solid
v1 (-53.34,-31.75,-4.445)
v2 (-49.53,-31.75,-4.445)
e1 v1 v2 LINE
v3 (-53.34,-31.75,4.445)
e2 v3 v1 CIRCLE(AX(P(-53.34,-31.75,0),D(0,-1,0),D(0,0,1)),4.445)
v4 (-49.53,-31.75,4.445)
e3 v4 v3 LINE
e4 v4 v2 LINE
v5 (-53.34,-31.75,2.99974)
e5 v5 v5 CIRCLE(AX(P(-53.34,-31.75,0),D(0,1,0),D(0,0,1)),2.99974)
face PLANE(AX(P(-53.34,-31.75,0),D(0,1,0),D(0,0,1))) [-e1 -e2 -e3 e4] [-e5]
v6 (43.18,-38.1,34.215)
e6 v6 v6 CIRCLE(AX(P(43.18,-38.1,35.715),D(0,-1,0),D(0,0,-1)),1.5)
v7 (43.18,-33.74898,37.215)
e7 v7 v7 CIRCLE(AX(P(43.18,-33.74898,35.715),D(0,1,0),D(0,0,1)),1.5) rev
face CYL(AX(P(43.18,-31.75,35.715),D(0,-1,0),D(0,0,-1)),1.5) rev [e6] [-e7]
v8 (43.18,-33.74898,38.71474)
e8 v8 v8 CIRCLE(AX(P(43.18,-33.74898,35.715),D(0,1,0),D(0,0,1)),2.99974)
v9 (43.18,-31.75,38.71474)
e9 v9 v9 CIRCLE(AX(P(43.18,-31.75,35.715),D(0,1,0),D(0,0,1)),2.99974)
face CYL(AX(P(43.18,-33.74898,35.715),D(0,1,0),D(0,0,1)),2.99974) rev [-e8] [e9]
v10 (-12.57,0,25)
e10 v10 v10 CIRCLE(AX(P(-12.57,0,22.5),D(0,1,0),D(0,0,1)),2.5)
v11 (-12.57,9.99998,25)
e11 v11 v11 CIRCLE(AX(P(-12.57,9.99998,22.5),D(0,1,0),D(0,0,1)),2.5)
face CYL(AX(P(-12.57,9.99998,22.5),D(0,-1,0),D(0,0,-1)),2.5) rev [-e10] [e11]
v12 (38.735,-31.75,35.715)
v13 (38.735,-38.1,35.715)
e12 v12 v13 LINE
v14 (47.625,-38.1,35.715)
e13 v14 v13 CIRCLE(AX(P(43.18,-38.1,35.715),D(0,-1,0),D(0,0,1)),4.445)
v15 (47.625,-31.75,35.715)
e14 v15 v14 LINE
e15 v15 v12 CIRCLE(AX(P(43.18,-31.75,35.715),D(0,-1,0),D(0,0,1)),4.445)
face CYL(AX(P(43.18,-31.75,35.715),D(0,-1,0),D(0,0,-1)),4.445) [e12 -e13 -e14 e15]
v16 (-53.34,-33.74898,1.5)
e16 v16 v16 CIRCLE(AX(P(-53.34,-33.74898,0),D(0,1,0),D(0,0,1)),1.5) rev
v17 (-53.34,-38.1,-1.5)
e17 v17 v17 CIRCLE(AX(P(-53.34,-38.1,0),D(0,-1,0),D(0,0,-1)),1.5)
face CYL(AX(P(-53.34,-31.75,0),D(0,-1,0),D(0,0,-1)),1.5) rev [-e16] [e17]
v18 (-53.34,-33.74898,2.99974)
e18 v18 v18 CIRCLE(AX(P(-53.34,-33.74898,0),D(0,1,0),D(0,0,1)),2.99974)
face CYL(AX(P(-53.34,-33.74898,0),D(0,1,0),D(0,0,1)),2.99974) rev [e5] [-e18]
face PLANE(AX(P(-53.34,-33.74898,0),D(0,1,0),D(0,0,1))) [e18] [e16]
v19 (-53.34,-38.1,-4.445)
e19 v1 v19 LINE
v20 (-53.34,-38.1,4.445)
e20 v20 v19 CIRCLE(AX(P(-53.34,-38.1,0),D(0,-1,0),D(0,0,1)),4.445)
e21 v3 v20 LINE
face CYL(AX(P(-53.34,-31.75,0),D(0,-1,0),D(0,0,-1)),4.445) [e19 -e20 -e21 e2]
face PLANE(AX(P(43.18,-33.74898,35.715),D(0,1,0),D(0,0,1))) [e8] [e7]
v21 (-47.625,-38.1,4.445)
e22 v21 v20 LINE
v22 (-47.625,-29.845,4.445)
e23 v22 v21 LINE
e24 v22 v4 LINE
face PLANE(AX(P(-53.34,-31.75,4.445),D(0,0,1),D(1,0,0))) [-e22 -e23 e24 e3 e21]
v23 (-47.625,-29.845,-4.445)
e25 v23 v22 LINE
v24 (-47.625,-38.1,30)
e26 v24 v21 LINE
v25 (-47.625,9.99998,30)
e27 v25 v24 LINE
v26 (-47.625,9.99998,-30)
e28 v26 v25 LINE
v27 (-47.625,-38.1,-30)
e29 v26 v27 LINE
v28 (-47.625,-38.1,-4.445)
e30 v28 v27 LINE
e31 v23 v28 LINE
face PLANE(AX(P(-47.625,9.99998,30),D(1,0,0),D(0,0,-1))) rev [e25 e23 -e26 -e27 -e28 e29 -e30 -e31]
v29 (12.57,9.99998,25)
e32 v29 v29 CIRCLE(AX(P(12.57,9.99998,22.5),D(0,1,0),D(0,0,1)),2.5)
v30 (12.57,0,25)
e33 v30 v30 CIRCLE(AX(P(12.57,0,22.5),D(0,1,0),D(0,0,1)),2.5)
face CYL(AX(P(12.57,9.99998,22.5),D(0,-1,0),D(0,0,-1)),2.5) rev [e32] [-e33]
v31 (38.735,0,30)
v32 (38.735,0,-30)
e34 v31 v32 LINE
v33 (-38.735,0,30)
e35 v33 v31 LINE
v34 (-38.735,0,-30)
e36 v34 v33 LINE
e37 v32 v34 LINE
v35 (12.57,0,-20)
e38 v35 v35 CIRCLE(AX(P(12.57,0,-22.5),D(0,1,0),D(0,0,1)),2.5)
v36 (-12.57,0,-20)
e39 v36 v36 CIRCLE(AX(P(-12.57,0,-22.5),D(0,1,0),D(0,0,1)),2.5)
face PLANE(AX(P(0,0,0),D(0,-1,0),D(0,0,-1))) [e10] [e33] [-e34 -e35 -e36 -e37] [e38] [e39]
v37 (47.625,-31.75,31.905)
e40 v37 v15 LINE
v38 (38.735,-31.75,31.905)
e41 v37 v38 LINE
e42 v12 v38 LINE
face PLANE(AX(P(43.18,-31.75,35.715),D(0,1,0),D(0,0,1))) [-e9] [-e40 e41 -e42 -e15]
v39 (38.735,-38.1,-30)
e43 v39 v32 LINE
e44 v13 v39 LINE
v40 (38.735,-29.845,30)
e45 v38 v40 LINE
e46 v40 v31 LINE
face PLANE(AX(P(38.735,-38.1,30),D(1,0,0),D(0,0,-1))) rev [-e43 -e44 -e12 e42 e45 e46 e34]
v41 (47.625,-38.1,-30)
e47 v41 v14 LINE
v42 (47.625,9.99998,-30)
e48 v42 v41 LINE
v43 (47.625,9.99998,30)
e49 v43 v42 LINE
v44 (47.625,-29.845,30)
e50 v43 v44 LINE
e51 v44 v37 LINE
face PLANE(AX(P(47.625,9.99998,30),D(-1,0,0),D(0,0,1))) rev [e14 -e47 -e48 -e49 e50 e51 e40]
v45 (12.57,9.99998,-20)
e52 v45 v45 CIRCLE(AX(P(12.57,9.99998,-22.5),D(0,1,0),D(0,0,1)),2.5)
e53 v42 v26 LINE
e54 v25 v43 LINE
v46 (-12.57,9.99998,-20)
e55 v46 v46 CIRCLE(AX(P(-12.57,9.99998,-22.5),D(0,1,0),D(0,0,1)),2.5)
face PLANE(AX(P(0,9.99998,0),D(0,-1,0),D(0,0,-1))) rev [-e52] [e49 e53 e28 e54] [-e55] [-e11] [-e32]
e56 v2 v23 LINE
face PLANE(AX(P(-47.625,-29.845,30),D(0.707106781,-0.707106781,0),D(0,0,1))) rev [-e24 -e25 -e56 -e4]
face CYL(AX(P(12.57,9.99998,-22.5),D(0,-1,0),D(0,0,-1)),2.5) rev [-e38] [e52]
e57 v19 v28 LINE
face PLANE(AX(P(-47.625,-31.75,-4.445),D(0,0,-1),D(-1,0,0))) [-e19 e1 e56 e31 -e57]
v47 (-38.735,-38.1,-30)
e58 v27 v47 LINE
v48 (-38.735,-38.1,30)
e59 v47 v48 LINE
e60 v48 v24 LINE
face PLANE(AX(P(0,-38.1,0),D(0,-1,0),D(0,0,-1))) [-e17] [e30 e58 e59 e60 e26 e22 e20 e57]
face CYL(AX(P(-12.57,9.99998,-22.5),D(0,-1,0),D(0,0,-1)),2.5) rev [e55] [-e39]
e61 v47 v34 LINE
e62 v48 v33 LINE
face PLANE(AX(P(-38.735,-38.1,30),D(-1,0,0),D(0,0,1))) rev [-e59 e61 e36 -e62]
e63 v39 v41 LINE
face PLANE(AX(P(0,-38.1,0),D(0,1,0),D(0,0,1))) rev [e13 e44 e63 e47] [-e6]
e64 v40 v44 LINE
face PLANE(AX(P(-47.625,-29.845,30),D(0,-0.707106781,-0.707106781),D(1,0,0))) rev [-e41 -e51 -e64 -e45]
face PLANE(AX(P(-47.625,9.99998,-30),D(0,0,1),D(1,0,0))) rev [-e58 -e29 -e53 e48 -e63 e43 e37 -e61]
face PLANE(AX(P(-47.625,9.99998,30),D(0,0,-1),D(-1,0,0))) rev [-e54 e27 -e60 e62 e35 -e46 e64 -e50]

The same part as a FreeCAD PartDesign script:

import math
import FreeCAD as App
import Part
import Sketcher
from FreeCAD import Vector
Q = App.Units.Quantity


def edges_at(feature, points):
    """Names of the edges that pass closest to the given points."""
    edges = feature.Shape.Edges
    near = lambda p: min(range(len(edges)), key=lambda i: edges[i].distToShape(Part.Vertex(*p))[0])
    return sorted({f"Edge{near(p) + 1}" for p in points})

doc = App.newDocument("Part")
body = doc.addObject("PartDesign::Body", "Body")

# Sketch on XZ plane
sketch1 = body.newObject("Sketcher::SketchObject", "Sketch")
sketch1.AttachmentSupport = (doc.getObject("XZ_Plane"), [""])
sketch1.MapMode = "FlatFace"
sketch1.addGeometry([
    Part.LineSegment(Vector(-47.625, -30, 0), Vector(-47.625, 30, 0)),  # 0
    Part.LineSegment(Vector(-47.625, 30, 0), Vector(47.625, 30, 0)),  # 1
    Part.LineSegment(Vector(47.625, 30, 0), Vector(47.625, -30, 0)),  # 2
    Part.LineSegment(Vector(47.625, -30, 0), Vector(-47.625, -30, 0)),  # 3
    Part.Circle(Vector(-12.57, 22.5, 0), Vector(0, 0, 1), 2.5),  # 4
    Part.Circle(Vector(12.57, 22.5, 0), Vector(0, 0, 1), 2.5),  # 5
    Part.Circle(Vector(-12.57, -22.5, 0), Vector(0, 0, 1), 2.5),  # 6
    Part.Circle(Vector(12.57, -22.5, 0), Vector(0, 0, 1), 2.5),  # 7
], False)
sketch1.addConstraint([
    Sketcher.Constraint("Coincident", 0, 2, 1, 1),
    Sketcher.Constraint("Coincident", 1, 2, 2, 1),
    Sketcher.Constraint("Coincident", 2, 2, 3, 1),
    Sketcher.Constraint("Coincident", 3, 2, 0, 1),
    Sketcher.Constraint("Vertical", 0),
    Sketcher.Constraint("Horizontal", 1),
    Sketcher.Constraint("Vertical", 2),
    Sketcher.Constraint("Horizontal", 3),
    Sketcher.Constraint("Equal", 4, 5),
    Sketcher.Constraint("Equal", 5, 6),
    Sketcher.Constraint("Equal", 6, 7),
    Sketcher.Constraint("Symmetric", 5, 3, 6, 3, -1, 1),
    Sketcher.Constraint("Symmetric", 4, 3, 7, 3, -1, 1),
    Sketcher.Constraint("Symmetric", 0, 2, 2, 2, -1, 1),
    Sketcher.Constraint("Symmetric", 4, 3, 5, 3, -2),
    Sketcher.Constraint("DistanceX", 1, 1, 1, 2, Q("3.75 in")),
    Sketcher.Constraint("Diameter", 4, Q("5 mm")),
    Sketcher.Constraint("DistanceY", 0, 1, 0, 2, Q("60 mm")),
    Sketcher.Constraint("DistanceX", 4, 3, -1, 1, Q("12.57 mm")),
    Sketcher.Constraint("DistanceY", -1, 1, 4, 3, Q("22.5 mm")),
])
pad1 = body.newObject("PartDesign::Pad", "Pad")
pad1.Profile = sketch1
pad1.Length = Q("0.3937 in")
pad1.Reversed = True

# Sketch on XZ plane
sketch2 = body.newObject("Sketcher::SketchObject", "Sketch001")
sketch2.AttachmentSupport = (doc.getObject("XZ_Plane"), [""])
sketch2.MapMode = "FlatFace"
sketch2.addGeometry([
    Part.LineSegment(Vector(-47.625, 30, 0), Vector(-47.625, -30, 0)),  # 0
    Part.LineSegment(Vector(-47.625, -30, 0), Vector(-38.735, -30, 0)),  # 1
    Part.LineSegment(Vector(-38.735, -30, 0), Vector(-38.735, 30, 0)),  # 2
    Part.LineSegment(Vector(-38.735, 30, 0), Vector(-47.625, 30, 0)),  # 3
    Part.LineSegment(Vector(38.735, 30, 0), Vector(38.735, -30, 0)),  # 4
    Part.LineSegment(Vector(38.735, -30, 0), Vector(47.625, -30, 0)),  # 5
    Part.LineSegment(Vector(47.625, -30, 0), Vector(47.625, 30, 0)),  # 6
    Part.LineSegment(Vector(47.625, 30, 0), Vector(38.735, 30, 0)),  # 7
], False)
sketch2.addConstraint([
    Sketcher.Constraint("Coincident", 0, 2, 1, 1),
    Sketcher.Constraint("Coincident", 1, 2, 2, 1),
    Sketcher.Constraint("Coincident", 2, 2, 3, 1),
    Sketcher.Constraint("Coincident", 3, 2, 0, 1),
    Sketcher.Constraint("Coincident", 4, 2, 5, 1),
    Sketcher.Constraint("Coincident", 5, 2, 6, 1),
    Sketcher.Constraint("Coincident", 6, 2, 7, 1),
    Sketcher.Constraint("Coincident", 7, 2, 4, 1),
    Sketcher.Constraint("Vertical", 0),
    Sketcher.Constraint("Horizontal", 1),
    Sketcher.Constraint("Vertical", 2),
    Sketcher.Constraint("Horizontal", 3),
    Sketcher.Constraint("Vertical", 4),
    Sketcher.Constraint("Horizontal", 5),
    Sketcher.Constraint("Vertical", 6),
    Sketcher.Constraint("Horizontal", 7),
    Sketcher.Constraint("Symmetric", 2, 2, 4, 2, -1, 1),
    Sketcher.Constraint("Symmetric", 0, 2, 6, 2, -1, 1),
    Sketcher.Constraint("Horizontal", 1, 2, 4, 2),
    Sketcher.Constraint("DistanceX", 1, 1, 1, 2, Q("0.35 in")),
    Sketcher.Constraint("DistanceX", 0, 2, 4, 2, Q("3.4 in")),
    Sketcher.Constraint("DistanceY", 0, 2, 0, 1, Q("60 mm")),
])
pad2 = body.newObject("PartDesign::Pad", "Pad001")
pad2.Profile = sketch2
pad2.Length = Q("1.5 in")

# Sketch on XZ plane
sketch3 = body.newObject("Sketcher::SketchObject", "Sketch002")
sketch3.AttachmentSupport = (doc.getObject("XZ_Plane"), [""])
sketch3.MapMode = "FlatFace"
sketch3.AttachmentOffset = App.Placement(Vector(0, 0, 1.5 * 25.4), App.Rotation())
sketch3.addGeometry([
    Part.LineSegment(Vector(-53.34, -4.445, 0), Vector(-47.625, -4.445, 0)),  # 0
    Part.LineSegment(Vector(-47.625, -4.445, 0), Vector(-47.625, 4.445, 0)),  # 1
    Part.LineSegment(Vector(-47.625, 4.445, 0), Vector(-53.34, 4.445, 0)),  # 2
    Part.ArcOfCircle(Part.Circle(Vector(-53.34, 0, 0), Vector(0, 0, 1), 4.445), math.radians(90), math.radians(270)),  # 3
    Part.Circle(Vector(-53.34, 0, 0), Vector(0, 0, 1), 1.5),  # 4
    Part.LineSegment(Vector(38.735, 35.715, 0), Vector(38.735, 30, 0)),  # 5
    Part.LineSegment(Vector(38.735, 30, 0), Vector(47.625, 30, 0)),  # 6
    Part.LineSegment(Vector(47.625, 30, 0), Vector(47.625, 35.715, 0)),  # 7
    Part.ArcOfCircle(Part.Circle(Vector(43.18, 35.715, 0), Vector(0, 0, 1), 4.445), math.radians(0), math.radians(180)),  # 8
    Part.Circle(Vector(43.18, 35.715, 0), Vector(0, 0, 1), 1.5),  # 9
], False)
sketch3.addConstraint([
    Sketcher.Constraint("Coincident", 0, 2, 1, 1),
    Sketcher.Constraint("Coincident", 1, 2, 2, 1),
    Sketcher.Constraint("Tangent", 2, 2, 3, 1),
    Sketcher.Constraint("Tangent", 3, 2, 0, 1),
    Sketcher.Constraint("Coincident", 5, 2, 6, 1),
    Sketcher.Constraint("Coincident", 6, 2, 7, 1),
    Sketcher.Constraint("Tangent", 7, 2, 8, 1),
    Sketcher.Constraint("Tangent", 8, 2, 5, 1),
    Sketcher.Constraint("Horizontal", 0),
    Sketcher.Constraint("Vertical", 1),
    Sketcher.Constraint("Horizontal", 2),
    Sketcher.Constraint("Vertical", 5),
    Sketcher.Constraint("Horizontal", 6),
    Sketcher.Constraint("Vertical", 7),
    Sketcher.Constraint("Coincident", 4, 3, 3, 3),
    Sketcher.Constraint("Coincident", 9, 3, 8, 3),
    Sketcher.Constraint("Equal", 3, 8),
    Sketcher.Constraint("Equal", 4, 9),
    Sketcher.Constraint("PointOnObject", 3, 3, -1),
    Sketcher.Constraint("Equal", 2, 5),
    Sketcher.Constraint("Radius", 3, Q("0.175 in")),
    Sketcher.Constraint("DistanceX", 3, 3, -1, 1, Q("2.1 in")),
    Sketcher.Constraint("DistanceX", -1, 1, 8, 3, Q("1.7 in")),
    Sketcher.Constraint("DistanceX", 1, 2, 5, 2, Q("3.4 in")),
    Sketcher.Constraint("Diameter", 4, Q("3 mm")),
    Sketcher.Constraint("DistanceY", -1, 1, 8, 3, Q("35.715 mm")),
])
pad3 = body.newObject("PartDesign::Pad", "Pad002")
pad3.Profile = sketch3
pad3.Length = Q("0.25 in")
pad3.Reversed = True

# Sketch on XZ plane
sketch4 = body.newObject("Sketcher::SketchObject", "Sketch003")
sketch4.AttachmentSupport = (doc.getObject("XZ_Plane"), [""])
sketch4.MapMode = "FlatFace"
sketch4.AttachmentOffset = App.Placement(Vector(0, 0, 1.25 * 25.4), App.Rotation())
sketch4.addGeometry([
    Part.Circle(Vector(43.18, 35.715, 0), Vector(0, 0, 1), 2.99974),
    Part.Circle(Vector(-53.34, 0, 0), Vector(0, 0, 1), 2.99974),
], False)
sketch4.addConstraint([
    Sketcher.Constraint("Equal", 0, 1),
    Sketcher.Constraint("PointOnObject", 1, 3, -1),
    Sketcher.Constraint("Diameter", 0, Q("0.2362 in")),
    Sketcher.Constraint("DistanceX", -1, 1, 0, 3, Q("1.7 in")),
    Sketcher.Constraint("DistanceX", 1, 3, -1, 1, Q("2.1 in")),
    Sketcher.Constraint("DistanceY", -1, 1, 0, 3, Q("35.715 mm")),
])
pocket1 = body.newObject("PartDesign::Pocket", "Pocket")
pocket1.Profile = sketch4
pocket1.Length = Q("0.0787 in")
pocket1.Reversed = True
doc.recompute()

chamfer = body.newObject("PartDesign::Chamfer", "Chamfer")
chamfer.Base = (pocket1, edges_at(pocket1, [(-47.625, -31.75, 0), (43.18, -31.75, 30)]))
chamfer.Size = Q("0.075 in")

doc.recompute()
